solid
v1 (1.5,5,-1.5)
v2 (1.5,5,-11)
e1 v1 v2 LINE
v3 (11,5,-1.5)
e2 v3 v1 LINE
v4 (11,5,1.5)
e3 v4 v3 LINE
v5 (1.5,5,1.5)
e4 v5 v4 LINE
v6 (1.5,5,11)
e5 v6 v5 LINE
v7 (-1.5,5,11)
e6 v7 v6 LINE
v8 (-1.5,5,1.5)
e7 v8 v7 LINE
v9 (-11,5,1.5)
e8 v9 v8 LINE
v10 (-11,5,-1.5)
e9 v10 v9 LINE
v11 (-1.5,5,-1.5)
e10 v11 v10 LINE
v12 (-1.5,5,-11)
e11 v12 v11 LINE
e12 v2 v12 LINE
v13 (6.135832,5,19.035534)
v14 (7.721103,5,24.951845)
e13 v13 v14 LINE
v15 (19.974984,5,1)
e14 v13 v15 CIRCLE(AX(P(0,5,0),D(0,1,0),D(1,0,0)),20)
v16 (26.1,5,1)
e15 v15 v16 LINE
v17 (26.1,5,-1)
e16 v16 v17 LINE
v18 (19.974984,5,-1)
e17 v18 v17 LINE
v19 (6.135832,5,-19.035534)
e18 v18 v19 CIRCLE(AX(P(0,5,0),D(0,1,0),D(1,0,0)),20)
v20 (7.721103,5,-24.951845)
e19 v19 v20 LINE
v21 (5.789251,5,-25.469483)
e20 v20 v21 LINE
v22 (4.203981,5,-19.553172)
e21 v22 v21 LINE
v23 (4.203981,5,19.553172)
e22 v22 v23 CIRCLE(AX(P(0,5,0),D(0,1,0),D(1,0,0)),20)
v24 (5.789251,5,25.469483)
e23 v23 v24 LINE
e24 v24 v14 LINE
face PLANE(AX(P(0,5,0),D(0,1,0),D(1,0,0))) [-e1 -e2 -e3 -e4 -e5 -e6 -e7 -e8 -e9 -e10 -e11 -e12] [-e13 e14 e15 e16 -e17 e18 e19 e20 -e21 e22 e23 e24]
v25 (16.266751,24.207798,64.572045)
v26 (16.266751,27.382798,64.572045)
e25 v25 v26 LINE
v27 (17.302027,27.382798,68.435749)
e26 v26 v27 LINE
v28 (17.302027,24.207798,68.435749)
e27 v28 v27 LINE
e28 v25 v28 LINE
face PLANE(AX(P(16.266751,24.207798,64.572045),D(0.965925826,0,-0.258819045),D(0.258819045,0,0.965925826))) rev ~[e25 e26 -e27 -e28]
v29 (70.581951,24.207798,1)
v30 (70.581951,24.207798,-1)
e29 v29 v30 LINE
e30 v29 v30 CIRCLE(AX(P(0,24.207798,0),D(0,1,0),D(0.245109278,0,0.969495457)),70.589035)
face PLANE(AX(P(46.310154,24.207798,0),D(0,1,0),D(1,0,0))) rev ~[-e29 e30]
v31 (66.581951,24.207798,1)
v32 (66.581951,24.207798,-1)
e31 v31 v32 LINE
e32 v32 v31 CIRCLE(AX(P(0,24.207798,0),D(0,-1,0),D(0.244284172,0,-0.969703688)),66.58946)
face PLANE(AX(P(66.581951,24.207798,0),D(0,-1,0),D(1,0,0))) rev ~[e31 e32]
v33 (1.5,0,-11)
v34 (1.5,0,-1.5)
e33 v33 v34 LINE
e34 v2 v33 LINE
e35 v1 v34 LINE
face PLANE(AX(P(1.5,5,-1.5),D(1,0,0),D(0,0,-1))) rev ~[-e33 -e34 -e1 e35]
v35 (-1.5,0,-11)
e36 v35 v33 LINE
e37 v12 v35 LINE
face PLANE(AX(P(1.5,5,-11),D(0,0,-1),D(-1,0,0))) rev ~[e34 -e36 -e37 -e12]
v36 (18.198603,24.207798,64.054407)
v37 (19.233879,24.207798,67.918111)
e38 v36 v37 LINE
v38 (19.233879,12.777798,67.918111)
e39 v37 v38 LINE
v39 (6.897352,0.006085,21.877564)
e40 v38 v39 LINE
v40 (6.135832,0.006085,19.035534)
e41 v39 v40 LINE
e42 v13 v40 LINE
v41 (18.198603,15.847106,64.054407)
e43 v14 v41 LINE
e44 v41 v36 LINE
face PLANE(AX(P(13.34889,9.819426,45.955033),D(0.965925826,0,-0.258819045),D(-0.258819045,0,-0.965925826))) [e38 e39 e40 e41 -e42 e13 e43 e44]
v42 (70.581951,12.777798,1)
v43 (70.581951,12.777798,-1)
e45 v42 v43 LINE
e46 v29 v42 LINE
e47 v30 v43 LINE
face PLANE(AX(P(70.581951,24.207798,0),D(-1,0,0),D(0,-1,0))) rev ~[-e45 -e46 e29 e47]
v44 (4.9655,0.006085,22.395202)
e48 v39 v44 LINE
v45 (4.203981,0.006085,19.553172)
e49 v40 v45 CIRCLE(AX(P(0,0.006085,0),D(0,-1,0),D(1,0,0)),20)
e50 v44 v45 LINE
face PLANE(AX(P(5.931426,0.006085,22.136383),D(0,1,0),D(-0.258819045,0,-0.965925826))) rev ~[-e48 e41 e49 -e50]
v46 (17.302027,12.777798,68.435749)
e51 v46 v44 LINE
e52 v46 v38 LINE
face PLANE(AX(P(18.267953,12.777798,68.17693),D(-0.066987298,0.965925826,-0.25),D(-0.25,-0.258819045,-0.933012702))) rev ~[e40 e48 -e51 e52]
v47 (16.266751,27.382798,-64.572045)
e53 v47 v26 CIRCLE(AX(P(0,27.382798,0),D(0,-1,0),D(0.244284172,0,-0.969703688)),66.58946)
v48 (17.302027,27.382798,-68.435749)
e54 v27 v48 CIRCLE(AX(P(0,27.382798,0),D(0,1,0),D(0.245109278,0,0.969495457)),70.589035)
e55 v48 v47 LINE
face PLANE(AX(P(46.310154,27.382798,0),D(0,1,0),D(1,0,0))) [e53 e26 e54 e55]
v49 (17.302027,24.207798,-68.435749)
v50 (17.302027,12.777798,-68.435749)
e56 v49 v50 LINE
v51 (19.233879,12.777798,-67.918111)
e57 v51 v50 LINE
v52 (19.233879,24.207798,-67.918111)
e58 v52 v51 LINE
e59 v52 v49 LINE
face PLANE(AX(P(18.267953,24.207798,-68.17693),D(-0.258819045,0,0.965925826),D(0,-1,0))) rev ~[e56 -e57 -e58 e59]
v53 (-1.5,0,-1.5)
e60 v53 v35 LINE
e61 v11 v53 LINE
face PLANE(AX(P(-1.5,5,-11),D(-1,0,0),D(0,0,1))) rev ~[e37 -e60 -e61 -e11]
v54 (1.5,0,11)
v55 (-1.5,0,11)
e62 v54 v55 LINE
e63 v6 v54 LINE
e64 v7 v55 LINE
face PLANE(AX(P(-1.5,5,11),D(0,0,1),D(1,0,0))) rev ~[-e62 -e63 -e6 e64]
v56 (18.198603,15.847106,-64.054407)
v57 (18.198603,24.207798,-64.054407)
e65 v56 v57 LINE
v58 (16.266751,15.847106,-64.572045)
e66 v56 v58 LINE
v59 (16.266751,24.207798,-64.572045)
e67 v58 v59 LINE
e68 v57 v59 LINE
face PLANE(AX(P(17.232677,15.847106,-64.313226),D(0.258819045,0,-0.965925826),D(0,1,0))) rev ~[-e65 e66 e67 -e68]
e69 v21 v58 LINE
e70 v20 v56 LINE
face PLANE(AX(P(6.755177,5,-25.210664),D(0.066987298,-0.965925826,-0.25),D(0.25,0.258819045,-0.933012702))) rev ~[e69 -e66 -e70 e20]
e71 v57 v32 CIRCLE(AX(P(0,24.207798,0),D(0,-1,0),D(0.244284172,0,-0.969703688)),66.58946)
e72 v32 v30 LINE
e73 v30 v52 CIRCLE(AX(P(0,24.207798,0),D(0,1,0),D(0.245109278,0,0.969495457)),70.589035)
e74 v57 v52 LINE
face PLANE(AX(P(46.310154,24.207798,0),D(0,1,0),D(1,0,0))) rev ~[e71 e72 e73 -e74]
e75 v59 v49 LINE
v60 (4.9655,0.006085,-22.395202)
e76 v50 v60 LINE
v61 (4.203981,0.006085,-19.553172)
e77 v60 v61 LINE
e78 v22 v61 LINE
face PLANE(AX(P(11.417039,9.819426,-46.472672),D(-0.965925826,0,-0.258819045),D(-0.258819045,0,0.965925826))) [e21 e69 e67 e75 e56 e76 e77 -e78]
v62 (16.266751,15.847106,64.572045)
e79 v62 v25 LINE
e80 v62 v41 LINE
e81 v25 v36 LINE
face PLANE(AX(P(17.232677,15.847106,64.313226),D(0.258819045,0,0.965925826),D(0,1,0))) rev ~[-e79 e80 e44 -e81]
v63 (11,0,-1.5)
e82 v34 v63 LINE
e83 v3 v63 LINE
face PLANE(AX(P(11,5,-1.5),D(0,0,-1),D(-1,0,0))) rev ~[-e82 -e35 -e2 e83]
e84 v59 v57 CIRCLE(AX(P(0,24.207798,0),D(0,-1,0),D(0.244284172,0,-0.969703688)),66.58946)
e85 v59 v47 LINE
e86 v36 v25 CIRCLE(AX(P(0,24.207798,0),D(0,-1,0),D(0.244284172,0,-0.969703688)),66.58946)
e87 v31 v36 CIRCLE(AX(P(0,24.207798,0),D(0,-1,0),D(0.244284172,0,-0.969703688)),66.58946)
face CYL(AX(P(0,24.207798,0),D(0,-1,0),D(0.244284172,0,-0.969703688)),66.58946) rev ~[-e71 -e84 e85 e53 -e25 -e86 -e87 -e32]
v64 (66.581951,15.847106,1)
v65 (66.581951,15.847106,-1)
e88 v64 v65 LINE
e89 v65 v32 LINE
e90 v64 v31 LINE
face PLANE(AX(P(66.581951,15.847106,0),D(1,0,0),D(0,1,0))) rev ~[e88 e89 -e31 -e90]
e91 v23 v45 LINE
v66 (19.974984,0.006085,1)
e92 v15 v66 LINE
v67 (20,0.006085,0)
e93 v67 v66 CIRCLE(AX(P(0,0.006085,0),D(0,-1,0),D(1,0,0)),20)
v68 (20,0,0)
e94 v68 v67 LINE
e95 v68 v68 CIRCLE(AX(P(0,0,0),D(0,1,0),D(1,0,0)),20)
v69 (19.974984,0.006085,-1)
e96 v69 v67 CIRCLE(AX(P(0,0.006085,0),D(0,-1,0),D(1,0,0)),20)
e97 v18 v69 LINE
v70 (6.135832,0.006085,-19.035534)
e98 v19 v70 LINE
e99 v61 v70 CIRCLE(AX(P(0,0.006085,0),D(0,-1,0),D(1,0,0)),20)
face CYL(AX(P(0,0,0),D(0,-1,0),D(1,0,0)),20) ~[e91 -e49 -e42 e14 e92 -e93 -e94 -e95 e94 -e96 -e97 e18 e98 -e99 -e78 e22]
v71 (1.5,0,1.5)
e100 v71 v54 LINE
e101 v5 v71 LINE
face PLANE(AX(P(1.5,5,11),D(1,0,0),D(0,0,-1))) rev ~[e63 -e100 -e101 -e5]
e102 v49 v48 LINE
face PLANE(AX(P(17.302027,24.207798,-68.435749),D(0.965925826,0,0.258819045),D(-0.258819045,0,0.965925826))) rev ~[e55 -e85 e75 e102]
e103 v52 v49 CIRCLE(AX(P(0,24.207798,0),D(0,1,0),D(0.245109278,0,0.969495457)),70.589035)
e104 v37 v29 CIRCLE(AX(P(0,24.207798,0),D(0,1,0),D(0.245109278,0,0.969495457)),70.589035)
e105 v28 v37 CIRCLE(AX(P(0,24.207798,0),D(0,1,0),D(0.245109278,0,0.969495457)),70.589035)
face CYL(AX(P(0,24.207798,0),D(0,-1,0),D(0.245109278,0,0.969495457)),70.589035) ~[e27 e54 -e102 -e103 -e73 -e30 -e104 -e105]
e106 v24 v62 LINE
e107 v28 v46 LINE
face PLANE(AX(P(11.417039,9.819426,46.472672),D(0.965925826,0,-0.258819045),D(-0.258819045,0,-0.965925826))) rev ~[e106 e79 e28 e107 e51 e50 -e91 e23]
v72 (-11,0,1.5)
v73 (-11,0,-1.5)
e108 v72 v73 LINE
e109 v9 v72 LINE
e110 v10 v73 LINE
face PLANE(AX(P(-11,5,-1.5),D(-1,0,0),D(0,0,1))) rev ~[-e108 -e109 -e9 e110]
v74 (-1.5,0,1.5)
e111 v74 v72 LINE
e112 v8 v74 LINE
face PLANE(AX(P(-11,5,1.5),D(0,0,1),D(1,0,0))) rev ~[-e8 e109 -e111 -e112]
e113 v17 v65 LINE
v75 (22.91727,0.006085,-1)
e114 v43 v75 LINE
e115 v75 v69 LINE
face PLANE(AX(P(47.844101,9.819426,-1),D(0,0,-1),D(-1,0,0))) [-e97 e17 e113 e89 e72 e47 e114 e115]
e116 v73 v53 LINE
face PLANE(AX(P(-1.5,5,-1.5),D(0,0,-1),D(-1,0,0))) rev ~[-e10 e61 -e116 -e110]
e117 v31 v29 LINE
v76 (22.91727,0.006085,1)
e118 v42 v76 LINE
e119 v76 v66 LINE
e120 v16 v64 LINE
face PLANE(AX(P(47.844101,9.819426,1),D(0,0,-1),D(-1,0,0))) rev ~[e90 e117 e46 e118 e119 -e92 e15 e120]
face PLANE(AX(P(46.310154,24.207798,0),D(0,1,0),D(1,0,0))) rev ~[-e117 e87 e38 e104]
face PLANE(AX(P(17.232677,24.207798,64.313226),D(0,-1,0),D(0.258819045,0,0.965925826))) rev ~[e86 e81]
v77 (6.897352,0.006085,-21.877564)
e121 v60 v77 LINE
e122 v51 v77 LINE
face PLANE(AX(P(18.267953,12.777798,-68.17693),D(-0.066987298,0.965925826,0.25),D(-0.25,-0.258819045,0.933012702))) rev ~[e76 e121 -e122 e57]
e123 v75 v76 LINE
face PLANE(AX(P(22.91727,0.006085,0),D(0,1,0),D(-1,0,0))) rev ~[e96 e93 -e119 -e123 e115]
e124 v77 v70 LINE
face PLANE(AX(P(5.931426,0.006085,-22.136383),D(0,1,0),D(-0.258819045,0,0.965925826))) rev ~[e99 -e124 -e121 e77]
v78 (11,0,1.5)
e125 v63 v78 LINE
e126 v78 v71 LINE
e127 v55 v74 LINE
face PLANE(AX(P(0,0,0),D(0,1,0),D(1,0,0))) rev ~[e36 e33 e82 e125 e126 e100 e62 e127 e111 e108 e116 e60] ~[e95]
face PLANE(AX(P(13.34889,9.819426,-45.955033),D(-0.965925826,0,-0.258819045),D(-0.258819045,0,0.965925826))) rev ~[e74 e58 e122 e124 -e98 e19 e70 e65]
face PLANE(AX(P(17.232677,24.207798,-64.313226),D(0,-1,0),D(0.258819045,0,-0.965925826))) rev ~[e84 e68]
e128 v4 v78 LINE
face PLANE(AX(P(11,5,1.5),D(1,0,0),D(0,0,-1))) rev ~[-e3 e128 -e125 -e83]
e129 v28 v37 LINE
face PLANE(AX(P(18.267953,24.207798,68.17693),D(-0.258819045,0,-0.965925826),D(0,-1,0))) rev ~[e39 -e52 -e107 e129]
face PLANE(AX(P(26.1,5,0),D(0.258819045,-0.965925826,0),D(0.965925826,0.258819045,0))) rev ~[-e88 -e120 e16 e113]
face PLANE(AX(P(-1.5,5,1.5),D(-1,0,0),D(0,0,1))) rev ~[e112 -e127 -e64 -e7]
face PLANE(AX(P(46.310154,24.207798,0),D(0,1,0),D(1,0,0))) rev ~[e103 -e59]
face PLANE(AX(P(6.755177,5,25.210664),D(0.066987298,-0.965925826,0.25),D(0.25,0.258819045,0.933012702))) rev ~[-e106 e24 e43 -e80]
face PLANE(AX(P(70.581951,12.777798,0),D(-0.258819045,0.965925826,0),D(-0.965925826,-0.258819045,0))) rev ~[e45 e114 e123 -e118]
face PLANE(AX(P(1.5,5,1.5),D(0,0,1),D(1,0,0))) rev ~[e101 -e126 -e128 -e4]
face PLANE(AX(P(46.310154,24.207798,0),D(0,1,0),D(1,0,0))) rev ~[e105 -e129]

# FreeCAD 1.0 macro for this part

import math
import FreeCAD as App
import Part
import Sketcher

V = App.Vector
Q = App.Units.Quantity

doc = App.newDocument("Part")
body = doc.addObject("PartDesign::Body", "Body")

# Sketch on XZ plane
sketch1 = body.newObject("Sketcher::SketchObject", "Sketch")
sketch1.AttachmentSupport = (doc.getObject("XZ_Plane"), [""])
sketch1.MapMode = "FlatFace"
sketch1.addGeometry(Part.Circle(V(0, 0, 0), V(0, 0, 1), 20), False)
sketch1.addConstraint([
    Sketcher.Constraint("Coincident", 0, 3, -1, 1),
    Sketcher.Constraint("Diameter", 0, 40.0),
])
pad1 = body.newObject("PartDesign::Pad", "Pad")
pad1.Profile = sketch1
pad1.Length = 5
pad1.Reversed = True

# Sketch on XY plane
sketch2 = body.newObject("Sketcher::SketchObject", "Sketch001")
sketch2.AttachmentSupport = (doc.getObject("XY_Plane"), [""])
sketch2.MapMode = "FlatFace"
sketch2.addGeometry([
    Part.LineSegment(V(26.1, 5, 0), V(19.8, 5, 0)),  # 0
    Part.LineSegment(V(19.8, 5, 0), V(19.8, 0, 0)),  # 1
    Part.LineSegment(V(19.8, 0, 0), V(22.9, 0, 0)),  # 2
    Part.LineSegment(V(22.9, 0, 0), V(70.6, 12.8, 0)),  # 3
    Part.LineSegment(V(70.6, 12.8, 0), V(70.6, 24.2, 0)),  # 4
    Part.LineSegment(V(70.6, 24.2, 0), V(66.6, 24.2, 0)),  # 5
    Part.LineSegment(V(66.6, 24.2, 0), V(66.6, 15.8, 0)),  # 6
    Part.LineSegment(V(66.6, 15.8, 0), V(26.1, 5, 0)),  # 7
], False)
sketch2.addConstraint([
    Sketcher.Constraint("Coincident", 0, 2, 1, 1),
    Sketcher.Constraint("Coincident", 1, 2, 2, 1),
    Sketcher.Constraint("Coincident", 2, 2, 3, 1),
    Sketcher.Constraint("Coincident", 3, 2, 4, 1),
    Sketcher.Constraint("Coincident", 4, 2, 5, 1),
    Sketcher.Constraint("Coincident", 5, 2, 6, 1),
    Sketcher.Constraint("Coincident", 6, 2, 7, 1),
    Sketcher.Constraint("Coincident", 7, 2, 0, 1),
    Sketcher.Constraint("Horizontal", 0),
    Sketcher.Constraint("Vertical", 1),
    Sketcher.Constraint("Horizontal", 2),
    Sketcher.Constraint("Vertical", 4),
    Sketcher.Constraint("Horizontal", 5),
    Sketcher.Constraint("Vertical", 6),
    Sketcher.Constraint("Parallel", 3, 7),
    Sketcher.Constraint("DistanceX", 5, 2, 5, 1, 4.0),
    Sketcher.Constraint("Angle", 3, Q("15 deg")),
    Sketcher.Constraint("DistanceY", -1, 1, 0, 2, 5.0),
    Sketcher.Constraint("DistanceX", 0, 2, 0, 1, 6.35),
    Sketcher.Constraint("DistanceY", 4, 1, 4, 2, 11.43),
    Sketcher.Constraint("DistanceX", -1, 1, 7, 2, 26.1),
    Sketcher.Constraint("Distance", 7, 41.91),
    Sketcher.Constraint("DistanceX", 2, 1, 2, 2, 3.16727),
    Sketcher.Constraint("DistanceY", -1, 1, 3, 2, 12.777798),
])
pad2 = body.newObject("PartDesign::Pad", "Pad001")
pad2.Profile = sketch2
pad2.Length = 2
pad2.Midplane = True
doc.recompute()

polarpattern = body.newObject("PartDesign::PolarPattern", "PolarPattern")
polarpattern.Originals = [pad2]
polarpattern.Axis = (doc.getObject("Y_Axis"), [""])
polarpattern.Angle = 75
polarpattern.Occurrences = 2
body.Tip = polarpattern
doc.recompute()

polarpattern2 = body.newObject("PartDesign::PolarPattern", "PolarPattern001")
polarpattern2.Originals = [pad2]
polarpattern2.Axis = (doc.getObject("Y_Axis"), [""])
polarpattern2.Angle = 75
polarpattern2.Occurrences = 2
polarpattern2.Reversed = True
body.Tip = polarpattern2

# Sketch on XZ plane
sketch3 = body.newObject("Sketcher::SketchObject", "Sketch002")
sketch3.AttachmentSupport = (doc.getObject("XZ_Plane"), [""])
sketch3.MapMode = "FlatFace"
sketch3.AttachmentOffset = App.Placement(V(0, 0, -5), App.Rotation())
sketch3.addGeometry([
    Part.LineSegment(V(-11, 1.5, 0), V(-1.5, 1.5, 0)),  # 0
    Part.LineSegment(V(-1.5, 1.5, 0), V(-1.5, 11, 0)),  # 1
    Part.LineSegment(V(-1.5, 11, 0), V(1.5, 11, 0)),  # 2
    Part.LineSegment(V(1.5, 11, 0), V(1.5, 1.5, 0)),  # 3
    Part.LineSegment(V(1.5, 1.5, 0), V(11, 1.5, 0)),  # 4
    Part.LineSegment(V(11, 1.5, 0), V(11, -1.5, 0)),  # 5
    Part.LineSegment(V(11, -1.5, 0), V(1.5, -1.5, 0)),  # 6
    Part.LineSegment(V(1.5, -1.5, 0), V(1.5, -11, 0)),  # 7
    Part.LineSegment(V(1.5, -11, 0), V(-1.5, -11, 0)),  # 8
    Part.LineSegment(V(-1.5, -11, 0), V(-1.5, -1.5, 0)),  # 9
    Part.LineSegment(V(-1.5, -1.5, 0), V(-11, -1.5, 0)),  # 10
    Part.LineSegment(V(-11, -1.5, 0), V(-11, 1.5, 0)),  # 11
], False)
sketch3.addConstraint([
    Sketcher.Constraint("Coincident", 0, 2, 1, 1),
    Sketcher.Constraint("Coincident", 1, 2, 2, 1),
    Sketcher.Constraint("Coincident", 2, 2, 3, 1),
    Sketcher.Constraint("Coincident", 3, 2, 4, 1),
    Sketcher.Constraint("Coincident", 4, 2, 5, 1),
    Sketcher.Constraint("Coincident", 5, 2, 6, 1),
    Sketcher.Constraint("Coincident", 6, 2, 7, 1),
    Sketcher.Constraint("Coincident", 7, 2, 8, 1),
    Sketcher.Constraint("Coincident", 8, 2, 9, 1),
    Sketcher.Constraint("Coincident", 9, 2, 10, 1),
    Sketcher.Constraint("Coincident", 10, 2, 11, 1),
    Sketcher.Constraint("Coincident", 11, 2, 0, 1),
    Sketcher.Constraint("Horizontal", 0),
    Sketcher.Constraint("Vertical", 1),
    Sketcher.Constraint("Horizontal", 2),
    Sketcher.Constraint("Vertical", 3),
    Sketcher.Constraint("Horizontal", 4),
    Sketcher.Constraint("Vertical", 5),
    Sketcher.Constraint("Horizontal", 6),
    Sketcher.Constraint("Vertical", 7),
    Sketcher.Constraint("Horizontal", 8),
    Sketcher.Constraint("Vertical", 9),
    Sketcher.Constraint("Horizontal", 10),
    Sketcher.Constraint("Vertical", 11),
    Sketcher.Constraint("Symmetric", 0, 2, 6, 2, -1, 1),
    Sketcher.Constraint("Symmetric", 2, 2, 8, 2, -1, 1),
    Sketcher.Constraint("Symmetric", 4, 2, 10, 2, -1, 1),
    Sketcher.Constraint("Symmetric", 0, 2, 3, 2, -2),
    Sketcher.Constraint("Equal", 10, 1),
    Sketcher.Constraint("Equal", 8, 5),
    Sketcher.Constraint("DistanceX", 2, 1, 2, 2, 3.0),
    Sketcher.Constraint("DistanceX", 0, 1, 0, 2, 9.5),
])
pocket1 = body.newObject("PartDesign::Pocket", "Pocket")
pocket1.Profile = sketch3
pocket1.Type = "UpToFirst"
pocket1.Reversed = True

# Sketch on XZ plane
sketch4 = body.newObject("Sketcher::SketchObject", "Sketch003")
sketch4.AttachmentSupport = (doc.getObject("XZ_Plane"), [""])
sketch4.MapMode = "FlatFace"
sketch4.AttachmentOffset = App.Placement(V(0, 0, -24.207798), App.Rotation())
sketch4.addGeometry([
    Part.LineSegment(V(17.3, -68.4, 0), V(16.3, -64.6, 0)),
    Part.ArcOfCircle(Part.Circle(V(0, 0, 0), V(0, 0, 1), 66.6), math.radians(-76), math.radians(76)),
    Part.LineSegment(V(16.3, 64.6, 0), V(17.3, 68.4, 0)),
    Part.ArcOfCircle(Part.Circle(V(0, 0, 0), V(0, 0, 1), 70.6), math.radians(-76), math.radians(76)),
], False)
sketch4.addConstraint([
    Sketcher.Constraint("Coincident", 0, 2, 1, 1),
    Sketcher.Constraint("Coincident", 1, 2, 2, 1),
    Sketcher.Constraint("Coincident", 2, 2, 3, 2),
    Sketcher.Constraint("Coincident", 3, 1, 0, 1),
    Sketcher.Constraint("Coincident", 1, 3, -1, 1),
    Sketcher.Constraint("Coincident", 3, 3, -1, 1),
    Sketcher.Constraint("Vertical", 0, 2, 1, 2),
    Sketcher.Constraint("Vertical", 2, 2, 3, 1),
    Sketcher.Constraint("Angle", 0, Q("105 deg")),
    Sketcher.Constraint("Distance", 0, 4.0),
    Sketcher.Constraint("Radius", 1, 66.589461),
    Sketcher.Constraint("DistanceX", -1, 1, 0, 2, 16.266751),
])
pad3 = body.newObject("PartDesign::Pad", "Pad002")
pad3.Profile = sketch4
pad3.Length = 3.175
pad3.Reversed = True

doc.recompute()
